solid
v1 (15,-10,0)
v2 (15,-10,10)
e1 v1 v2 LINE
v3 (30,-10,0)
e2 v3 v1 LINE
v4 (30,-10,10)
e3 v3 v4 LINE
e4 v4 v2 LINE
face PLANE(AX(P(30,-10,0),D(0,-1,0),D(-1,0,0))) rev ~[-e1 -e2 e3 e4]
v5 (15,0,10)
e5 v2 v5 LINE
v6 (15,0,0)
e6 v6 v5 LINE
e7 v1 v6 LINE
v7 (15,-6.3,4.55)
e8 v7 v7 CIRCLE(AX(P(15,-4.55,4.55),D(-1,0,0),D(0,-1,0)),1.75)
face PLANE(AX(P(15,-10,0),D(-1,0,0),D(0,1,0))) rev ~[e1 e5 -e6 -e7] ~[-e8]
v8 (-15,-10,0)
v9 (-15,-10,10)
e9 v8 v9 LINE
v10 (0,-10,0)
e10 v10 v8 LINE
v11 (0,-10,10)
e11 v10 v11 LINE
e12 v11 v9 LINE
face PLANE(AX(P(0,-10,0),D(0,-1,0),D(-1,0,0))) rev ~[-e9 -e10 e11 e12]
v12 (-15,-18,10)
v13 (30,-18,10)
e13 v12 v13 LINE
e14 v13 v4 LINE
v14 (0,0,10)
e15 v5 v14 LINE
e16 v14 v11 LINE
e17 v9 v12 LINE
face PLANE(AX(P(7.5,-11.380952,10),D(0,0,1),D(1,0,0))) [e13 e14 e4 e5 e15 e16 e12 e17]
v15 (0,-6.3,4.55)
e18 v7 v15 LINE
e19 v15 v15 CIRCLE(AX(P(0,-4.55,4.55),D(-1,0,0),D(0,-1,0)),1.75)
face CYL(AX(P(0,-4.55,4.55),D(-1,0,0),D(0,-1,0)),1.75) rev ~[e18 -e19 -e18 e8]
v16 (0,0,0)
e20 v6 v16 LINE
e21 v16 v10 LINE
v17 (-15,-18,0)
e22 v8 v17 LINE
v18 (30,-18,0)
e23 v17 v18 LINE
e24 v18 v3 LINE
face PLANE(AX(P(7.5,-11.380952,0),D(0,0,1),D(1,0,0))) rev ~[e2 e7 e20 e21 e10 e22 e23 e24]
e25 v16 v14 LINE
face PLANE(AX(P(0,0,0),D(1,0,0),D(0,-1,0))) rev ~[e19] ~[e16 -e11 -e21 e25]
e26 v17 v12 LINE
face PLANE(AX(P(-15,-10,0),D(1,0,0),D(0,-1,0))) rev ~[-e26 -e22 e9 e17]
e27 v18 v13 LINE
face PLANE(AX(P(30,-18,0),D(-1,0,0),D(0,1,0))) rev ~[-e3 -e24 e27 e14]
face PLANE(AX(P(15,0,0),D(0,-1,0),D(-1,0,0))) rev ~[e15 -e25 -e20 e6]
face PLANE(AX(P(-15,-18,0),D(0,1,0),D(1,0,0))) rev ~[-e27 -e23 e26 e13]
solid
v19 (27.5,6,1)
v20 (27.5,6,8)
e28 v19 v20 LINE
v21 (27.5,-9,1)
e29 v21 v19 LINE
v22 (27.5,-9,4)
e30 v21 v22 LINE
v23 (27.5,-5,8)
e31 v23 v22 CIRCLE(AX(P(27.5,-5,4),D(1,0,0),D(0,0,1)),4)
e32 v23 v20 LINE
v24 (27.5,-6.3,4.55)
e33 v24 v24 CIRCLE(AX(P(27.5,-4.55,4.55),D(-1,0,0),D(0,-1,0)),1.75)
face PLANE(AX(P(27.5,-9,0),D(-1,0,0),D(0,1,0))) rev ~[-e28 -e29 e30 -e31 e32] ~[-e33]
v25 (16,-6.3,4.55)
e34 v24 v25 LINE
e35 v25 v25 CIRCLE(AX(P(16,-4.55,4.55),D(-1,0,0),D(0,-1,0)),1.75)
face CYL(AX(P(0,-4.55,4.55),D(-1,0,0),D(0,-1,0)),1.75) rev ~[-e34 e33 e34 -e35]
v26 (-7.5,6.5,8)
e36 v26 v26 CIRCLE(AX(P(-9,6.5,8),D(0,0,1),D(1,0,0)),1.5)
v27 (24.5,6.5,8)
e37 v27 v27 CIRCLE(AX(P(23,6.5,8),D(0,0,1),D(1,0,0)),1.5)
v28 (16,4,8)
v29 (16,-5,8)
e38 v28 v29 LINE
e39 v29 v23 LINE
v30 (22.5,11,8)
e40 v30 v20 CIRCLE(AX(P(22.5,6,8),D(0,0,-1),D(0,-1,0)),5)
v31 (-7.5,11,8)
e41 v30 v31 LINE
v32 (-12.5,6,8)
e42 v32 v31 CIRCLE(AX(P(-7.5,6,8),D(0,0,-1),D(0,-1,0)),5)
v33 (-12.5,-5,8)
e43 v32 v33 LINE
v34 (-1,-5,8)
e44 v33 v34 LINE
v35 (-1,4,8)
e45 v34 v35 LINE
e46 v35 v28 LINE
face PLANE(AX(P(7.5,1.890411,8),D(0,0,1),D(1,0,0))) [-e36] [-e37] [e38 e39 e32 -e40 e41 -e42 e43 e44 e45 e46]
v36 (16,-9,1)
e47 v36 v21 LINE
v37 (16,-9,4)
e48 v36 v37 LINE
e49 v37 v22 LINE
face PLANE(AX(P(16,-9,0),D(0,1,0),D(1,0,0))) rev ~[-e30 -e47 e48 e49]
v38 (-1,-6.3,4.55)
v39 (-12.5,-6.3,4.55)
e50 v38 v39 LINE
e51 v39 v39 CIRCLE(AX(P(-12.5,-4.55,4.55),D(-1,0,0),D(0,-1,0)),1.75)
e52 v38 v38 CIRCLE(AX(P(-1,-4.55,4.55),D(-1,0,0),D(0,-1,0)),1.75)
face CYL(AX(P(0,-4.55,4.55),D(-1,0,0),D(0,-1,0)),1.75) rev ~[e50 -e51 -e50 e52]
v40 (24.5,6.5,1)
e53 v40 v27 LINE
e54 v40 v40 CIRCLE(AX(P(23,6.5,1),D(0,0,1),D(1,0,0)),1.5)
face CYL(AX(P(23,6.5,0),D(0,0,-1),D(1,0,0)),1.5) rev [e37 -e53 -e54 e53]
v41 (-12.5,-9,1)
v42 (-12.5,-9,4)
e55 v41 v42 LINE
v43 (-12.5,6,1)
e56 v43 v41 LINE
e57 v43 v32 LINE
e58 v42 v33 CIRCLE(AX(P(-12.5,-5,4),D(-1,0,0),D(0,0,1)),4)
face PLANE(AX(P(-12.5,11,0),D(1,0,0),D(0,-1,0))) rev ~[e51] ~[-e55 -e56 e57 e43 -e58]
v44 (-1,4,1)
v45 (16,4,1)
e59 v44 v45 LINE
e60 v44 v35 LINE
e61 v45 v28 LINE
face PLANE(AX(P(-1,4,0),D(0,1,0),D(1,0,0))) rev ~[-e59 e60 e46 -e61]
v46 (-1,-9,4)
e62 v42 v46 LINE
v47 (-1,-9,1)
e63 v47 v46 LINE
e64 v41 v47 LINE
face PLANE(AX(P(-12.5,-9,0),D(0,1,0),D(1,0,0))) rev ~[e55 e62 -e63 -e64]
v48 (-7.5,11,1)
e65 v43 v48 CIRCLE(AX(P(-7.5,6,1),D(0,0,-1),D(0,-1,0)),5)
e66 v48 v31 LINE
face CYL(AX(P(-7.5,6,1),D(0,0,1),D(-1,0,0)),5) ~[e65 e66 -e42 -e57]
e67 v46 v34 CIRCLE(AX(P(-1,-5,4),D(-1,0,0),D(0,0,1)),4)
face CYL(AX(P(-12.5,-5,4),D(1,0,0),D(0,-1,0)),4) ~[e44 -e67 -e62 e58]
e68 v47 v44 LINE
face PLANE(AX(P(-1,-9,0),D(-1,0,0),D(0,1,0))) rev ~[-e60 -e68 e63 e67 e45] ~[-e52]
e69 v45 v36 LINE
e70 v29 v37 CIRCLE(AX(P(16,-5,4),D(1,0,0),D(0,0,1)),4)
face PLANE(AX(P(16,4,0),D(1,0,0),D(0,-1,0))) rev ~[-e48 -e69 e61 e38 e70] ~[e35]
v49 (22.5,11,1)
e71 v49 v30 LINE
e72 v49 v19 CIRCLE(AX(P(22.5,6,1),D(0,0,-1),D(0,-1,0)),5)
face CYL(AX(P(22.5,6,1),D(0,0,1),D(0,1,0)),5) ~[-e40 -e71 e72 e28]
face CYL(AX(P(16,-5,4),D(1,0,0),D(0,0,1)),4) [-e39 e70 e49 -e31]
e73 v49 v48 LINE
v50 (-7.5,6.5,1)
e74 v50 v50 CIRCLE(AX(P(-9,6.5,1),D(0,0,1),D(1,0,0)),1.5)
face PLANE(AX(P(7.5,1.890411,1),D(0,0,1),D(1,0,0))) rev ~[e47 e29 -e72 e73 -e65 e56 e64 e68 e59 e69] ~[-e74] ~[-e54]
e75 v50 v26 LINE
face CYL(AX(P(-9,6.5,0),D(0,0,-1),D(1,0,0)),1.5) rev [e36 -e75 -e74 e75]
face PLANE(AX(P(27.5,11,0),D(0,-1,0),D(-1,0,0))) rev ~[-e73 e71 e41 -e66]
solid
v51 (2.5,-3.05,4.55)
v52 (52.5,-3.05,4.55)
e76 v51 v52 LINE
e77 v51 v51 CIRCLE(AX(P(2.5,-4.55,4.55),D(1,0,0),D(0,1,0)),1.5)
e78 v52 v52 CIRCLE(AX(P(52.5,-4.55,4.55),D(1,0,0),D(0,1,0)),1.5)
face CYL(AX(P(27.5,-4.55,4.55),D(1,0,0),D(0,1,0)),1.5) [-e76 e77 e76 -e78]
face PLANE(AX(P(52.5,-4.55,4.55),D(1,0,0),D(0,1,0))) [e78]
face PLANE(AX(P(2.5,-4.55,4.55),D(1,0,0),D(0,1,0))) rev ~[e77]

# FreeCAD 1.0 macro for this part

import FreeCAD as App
import Part
import Sketcher
from FreeCAD import Vector
Q = App.Units.Quantity


def edges_at(feature, points):
    """Names of the edges that pass closest to the given points."""
    edges = feature.Shape.Edges
    near = lambda p: min(range(len(edges)), key=lambda i: edges[i].distToShape(Part.Vertex(*p))[0])
    return sorted({f"Edge{near(p) + 1}" for p in points})


def add_polygon(sketch, points):
    """Adds a closed chain of lines whose ends are joined by coincident constraints."""
    first, n = sketch.GeometryCount, len(points)
    for a, b in zip(points, points[1:] + points[:1]):
        sketch.addGeometry(Part.LineSegment(App.Vector(*a, 0), App.Vector(*b, 0)), False)
    for i in range(n):
        sketch.addConstraint(Sketcher.Constraint("Coincident", first + i, 2, first + (i + 1) % n, 1))

doc = App.newDocument("Part")
body = doc.addObject("PartDesign::Body", "Body")

sketch1 = body.newObject("Sketcher::SketchObject", "Sketch")
sketch1.AttachmentSupport = (doc.getObject("XY_Plane"), [""])
sketch1.MapMode = "FlatFace"
add_polygon(sketch1, [(15, 0), (0, 0), (0, -10), (-15, -10), (-15, -18), (30, -18), (30, -10), (15, -10)])
sketch1.addConstraint(Sketcher.Constraint("Horizontal", 0))
sketch1.addConstraint(Sketcher.Constraint("Vertical", 1))
sketch1.addConstraint(Sketcher.Constraint("Horizontal", 2))
sketch1.addConstraint(Sketcher.Constraint("Vertical", 3))
sketch1.addConstraint(Sketcher.Constraint("Horizontal", 4))
sketch1.addConstraint(Sketcher.Constraint("Vertical", 5))
sketch1.addConstraint(Sketcher.Constraint("Horizontal", 6))
sketch1.addConstraint(Sketcher.Constraint("Vertical", 7))
sketch1.addConstraint(Sketcher.Constraint("Coincident", 0, 2, -1, 1))
sketch1.addConstraint(Sketcher.Constraint("Symmetric", 2, 2, 6, 2, -2))
sketch1.addConstraint(Sketcher.Constraint("Equal", 2, 6))
sketch1.addConstraint(Sketcher.Constraint("DistanceX", 0, 2, 0, 1, Q("15 mm")))
sketch1.addConstraint(Sketcher.Constraint("DistanceY", 1, 2, 1, 1, Q("10 mm")))
sketch1.addConstraint(Sketcher.Constraint("DistanceY", 3, 2, 3, 1, Q("8 mm")))
pad1 = body.newObject("PartDesign::Pad", "Pad")
pad1.Profile = sketch1
pad1.Length = 10
body2 = doc.addObject("PartDesign::Body", "Body001")

sketch2 = body2.newObject("Sketcher::SketchObject", "Sketch001")
sketch2.AttachmentSupport = (doc.getObject("XY_Plane001"), [""])
sketch2.MapMode = "FlatFace"
add_polygon(sketch2, [(-12.5, 11), (-12.5, -9), (-1, -9), (-1, 4), (16, 4), (16, -9), (27.5, -9), (27.5, 11)])
sketch2.addGeometry(Part.Circle(Vector(-9, 6.5, 0), Vector(0, 0, 1), 1.5), False)
sketch2.addGeometry(Part.Circle(Vector(23, 6.5, 0), Vector(0, 0, 1), 1.5), False)
sketch2.addConstraint(Sketcher.Constraint("Vertical", 0))
sketch2.addConstraint(Sketcher.Constraint("Horizontal", 1))
sketch2.addConstraint(Sketcher.Constraint("Vertical", 2))
sketch2.addConstraint(Sketcher.Constraint("Horizontal", 3))
sketch2.addConstraint(Sketcher.Constraint("Vertical", 4))
sketch2.addConstraint(Sketcher.Constraint("Horizontal", 5))
sketch2.addConstraint(Sketcher.Constraint("Vertical", 6))
sketch2.addConstraint(Sketcher.Constraint("Horizontal", 7))
sketch2.addConstraint(Sketcher.Constraint("Equal", 8, 9))
sketch2.addConstraint(Sketcher.Constraint("Horizontal", 8, 3, 9, 3))
sketch2.addConstraint(Sketcher.Constraint("Horizontal", 1, 2, 4, 2))
sketch2.addConstraint(Sketcher.Constraint("Equal", 1, 5))
sketch2.addConstraint(Sketcher.Constraint("Diameter", 8, Q("3 mm")))
sketch2.addConstraint(Sketcher.Constraint("DistanceX", 3, 1, 3, 2, Q("17 mm")))
sketch2.addConstraint(Sketcher.Constraint("DistanceX", 7, 2, 7, 1, Q("40 mm")))
sketch2.addConstraint(Sketcher.Constraint("DistanceY", 0, 2, 0, 1, Q("20 mm")))
sketch2.addConstraint(Sketcher.Constraint("DistanceY", 2, 1, 2, 2, Q("13 mm")))
sketch2.addConstraint(Sketcher.Constraint("DistanceX", 8, 3, -1, 1, Q("9 mm")))
sketch2.addConstraint(Sketcher.Constraint("DistanceX", -1, 1, 9, 3, Q("23 mm")))
sketch2.addConstraint(Sketcher.Constraint("DistanceY", 0, 2, -1, 1, Q("9 mm")))
sketch2.addConstraint(Sketcher.Constraint("DistanceX", 1, 2, -1, 1, Q("1 mm")))
sketch2.addConstraint(Sketcher.Constraint("DistanceY", -1, 1, 8, 3, Q("6.5 mm")))
pad2 = body2.newObject("PartDesign::Pad", "Pad001")
pad2.Profile = sketch2
pad2.Length = 8
body3 = doc.addObject("PartDesign::Body", "Body002")

sketch3 = body3.newObject("Sketcher::SketchObject", "Sketch002")
sketch3.AttachmentSupport = (doc.getObject("YZ_Plane002"), [""])
sketch3.MapMode = "FlatFace"
sketch3.addGeometry(Part.Circle(Vector(-4.55, 4.55, 0), Vector(0, 0, 1), 1.75), False)
sketch3.addConstraint(Sketcher.Constraint("Diameter", 0, Q("3.5 mm")))
sketch3.addConstraint(Sketcher.Constraint("DistanceX", 0, 3, -1, 1, Q("4.55 mm")))
sketch3.addConstraint(Sketcher.Constraint("DistanceY", -1, 1, 0, 3, Q("4.55 mm")))
pad3 = body3.newObject("PartDesign::Pad", "Pad002")
pad3.Profile = sketch3
pad3.Length = 100
pad3.Midplane = True
doc.recompute()

body4 = doc.addObject("PartDesign::Body", "Body003")
body4.BaseFeature = body3
boolean = body.newObject("PartDesign::Boolean", "Boolean")
boolean.Type = "Cut"
boolean.addObjects([body4])
doc.recompute()

boolean2 = body2.newObject("PartDesign::Boolean", "Boolean001")
boolean2.Type = "Cut"
boolean2.addObjects([body3])

sketch4 = body2.newObject("Sketcher::SketchObject", "Sketch003")
sketch4.AttachmentSupport = (doc.getObject("XY_Plane001"), [""])
sketch4.MapMode = "FlatFace"
add_polygon(sketch4, [(-12.5, 11), (-12.5, -9), (-1, -9), (-1, 4), (16, 4), (16, -9), (27.5, -9), (27.5, 11)])
sketch4.addGeometry(Part.Circle(Vector(-9, 6.5, 0), Vector(0, 0, 1), 1.5), False)
sketch4.addGeometry(Part.Circle(Vector(23, 6.5, 0), Vector(0, 0, 1), 1.5), False)
sketch4.addConstraint(Sketcher.Constraint("Vertical", 0))
sketch4.addConstraint(Sketcher.Constraint("Horizontal", 1))
sketch4.addConstraint(Sketcher.Constraint("Vertical", 2))
sketch4.addConstraint(Sketcher.Constraint("Horizontal", 3))
sketch4.addConstraint(Sketcher.Constraint("Vertical", 4))
sketch4.addConstraint(Sketcher.Constraint("Horizontal", 5))
sketch4.addConstraint(Sketcher.Constraint("Vertical", 6))
sketch4.addConstraint(Sketcher.Constraint("Horizontal", 7))
sketch4.addConstraint(Sketcher.Constraint("Equal", 8, 9))
sketch4.addConstraint(Sketcher.Constraint("Horizontal", 8, 3, 9, 3))
sketch4.addConstraint(Sketcher.Constraint("Horizontal", 1, 2, 4, 2))
sketch4.addConstraint(Sketcher.Constraint("Equal", 1, 5))
sketch4.addConstraint(Sketcher.Constraint("Diameter", 8, Q("3 mm")))
sketch4.addConstraint(Sketcher.Constraint("DistanceX", 3, 1, 3, 2, Q("17 mm")))
sketch4.addConstraint(Sketcher.Constraint("DistanceX", 7, 2, 7, 1, Q("40 mm")))
sketch4.addConstraint(Sketcher.Constraint("DistanceY", 0, 2, 0, 1, Q("20 mm")))
sketch4.addConstraint(Sketcher.Constraint("DistanceY", 2, 1, 2, 2, Q("13 mm")))
sketch4.addConstraint(Sketcher.Constraint("DistanceX", 8, 3, -1, 1, Q("9 mm")))
sketch4.addConstraint(Sketcher.Constraint("DistanceX", -1, 1, 9, 3, Q("23 mm")))
sketch4.addConstraint(Sketcher.Constraint("DistanceY", 0, 2, -1, 1, Q("9 mm")))
sketch4.addConstraint(Sketcher.Constraint("DistanceX", 1, 2, -1, 1, Q("1 mm")))
sketch4.addConstraint(Sketcher.Constraint("DistanceY", -1, 1, 8, 3, Q("6.5 mm")))
pocket1 = body2.newObject("PartDesign::Pocket", "Pocket")
pocket1.Profile = sketch4
pocket1.Length = 1
pocket1.Reversed = True
doc.recompute()

fillet = body2.newObject("PartDesign::Fillet", "Fillet")
fillet.Base = (pocket1, edges_at(pocket1, [(21.75, -9, 8), (-6.75, -9, 8)]))
fillet.Radius = 4
doc.recompute()

fillet2 = body2.newObject("PartDesign::Fillet", "Fillet001")
fillet2.Base = (fillet, edges_at(fillet, [(27.5, 11, 4.5), (-12.5, 11, 4.5)]))
fillet2.Radius = 5
body5 = doc.addObject("PartDesign::Body", "Body004")

sketch5 = body5.newObject("Sketcher::SketchObject", "Sketch004")
sketch5.AttachmentSupport = (doc.getObject("YZ_Plane004"), [""])
sketch5.MapMode = "FlatFace"
sketch5.AttachmentOffset = App.Placement(Vector(0, 0, 27.5), App.Rotation())
sketch5.addGeometry(Part.Circle(Vector(-4.55, 4.55, 0), Vector(0, 0, 1), 1.5), False)
sketch5.addConstraint(Sketcher.Constraint("Diameter", 0, Q("3 mm")))
sketch5.addConstraint(Sketcher.Constraint("DistanceX", 0, 3, -1, 1, Q("4.55 mm")))
sketch5.addConstraint(Sketcher.Constraint("DistanceY", -1, 1, 0, 3, Q("4.55 mm")))
pad4 = body5.newObject("PartDesign::Pad", "Pad003")
pad4.Profile = sketch5
pad4.Length = 50
pad4.Midplane = True

doc.recompute()
